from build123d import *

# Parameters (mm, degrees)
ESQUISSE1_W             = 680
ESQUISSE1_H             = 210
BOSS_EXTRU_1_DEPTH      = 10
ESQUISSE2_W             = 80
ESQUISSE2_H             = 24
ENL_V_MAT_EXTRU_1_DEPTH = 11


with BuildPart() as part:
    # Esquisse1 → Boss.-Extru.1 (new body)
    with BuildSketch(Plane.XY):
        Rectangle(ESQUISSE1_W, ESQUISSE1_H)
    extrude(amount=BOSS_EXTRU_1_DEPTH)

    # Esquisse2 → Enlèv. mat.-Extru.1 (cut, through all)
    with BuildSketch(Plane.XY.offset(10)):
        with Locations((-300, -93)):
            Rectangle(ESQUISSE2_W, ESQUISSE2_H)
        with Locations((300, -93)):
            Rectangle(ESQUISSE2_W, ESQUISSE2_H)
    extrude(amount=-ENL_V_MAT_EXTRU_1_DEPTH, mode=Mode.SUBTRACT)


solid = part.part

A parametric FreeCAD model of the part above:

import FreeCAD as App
import Part
import Sketcher

V = App.Vector
Q = App.Units.Quantity


def add_polygon(sketch, points):
    """Adds a closed chain of lines whose ends are joined by coincident constraints."""
    first, n = sketch.GeometryCount, len(points)
    for a, b in zip(points, points[1:] + points[:1]):
        sketch.addGeometry(Part.LineSegment(App.Vector(*a, 0), App.Vector(*b, 0)), False)
    for i in range(n):
        sketch.addConstraint(Sketcher.Constraint("Coincident", first + i, 2, first + (i + 1) % n, 1))

doc = App.newDocument("Part")
params = doc.addObject("Spreadsheet::Sheet", "Params")
for row, (alias, value) in enumerate([
    ("sketch1_width", "680 mm"),
    ("sketch1_height", "210 mm"),
    ("pad1_length", "10 mm"),
    ("sketch2_width", "80 mm"),
    ("sketch2_height", "24 mm"),
], start=1):
    params.set(f"A{row}", alias)
    params.set(f"B{row}", "=" + value)
    params.setAlias(f"B{row}", alias)

body = doc.addObject("PartDesign::Body", "Body")

sketch1 = body.newObject("Sketcher::SketchObject", "Sketch")
sketch1.AttachmentSupport = (doc.getObject("XY_Plane"), [""])
sketch1.MapMode = "FlatFace"
add_polygon(sketch1, [(-340, 105), (-340, -105), (340, -105), (340, 105)])
sketch1.addConstraint(Sketcher.Constraint("Vertical", 0))
sketch1.addConstraint(Sketcher.Constraint("Horizontal", 1))
sketch1.addConstraint(Sketcher.Constraint("Vertical", 2))
sketch1.addConstraint(Sketcher.Constraint("Horizontal", 3))
sketch1.addConstraint(Sketcher.Constraint("Symmetric", 0, 2, 2, 2, -1, 1))
sketch1.addConstraint(Sketcher.Constraint("DistanceX", 1, 1, 1, 2, Q("680 mm")))
sketch1.addConstraint(Sketcher.Constraint("DistanceY", 0, 2, 0, 1, Q("210 mm")))
sketch1.setExpression("Constraints[9]", "Params.sketch1_width")
sketch1.setExpression("Constraints[10]", "Params.sketch1_height")
pad1 = body.newObject("PartDesign::Pad", "Pad")
pad1.Profile = sketch1
pad1.setExpression("Length", "Params.pad1_length")

sketch2 = body.newObject("Sketcher::SketchObject", "Sketch001")
sketch2.AttachmentSupport = (doc.getObject("XY_Plane"), [""])
sketch2.MapMode = "FlatFace"
sketch2.AttachmentOffset = App.Placement(V(0, 0, 10), App.Rotation())
add_polygon(sketch2, [(-340, -81), (-340, -105), (-260, -105), (-260, -81)])
add_polygon(sketch2, [(260, -81), (260, -105), (340, -105), (340, -81)])
sketch2.addConstraint(Sketcher.Constraint("Vertical", 0))
sketch2.addConstraint(Sketcher.Constraint("Horizontal", 1))
sketch2.addConstraint(Sketcher.Constraint("Vertical", 2))
sketch2.addConstraint(Sketcher.Constraint("Horizontal", 3))
sketch2.addConstraint(Sketcher.Constraint("Vertical", 4))
sketch2.addConstraint(Sketcher.Constraint("Horizontal", 5))
sketch2.addConstraint(Sketcher.Constraint("Vertical", 6))
sketch2.addConstraint(Sketcher.Constraint("Horizontal", 7))
sketch2.addConstraint(Sketcher.Constraint("Symmetric", 1, 2, 4, 2, -2))
sketch2.addConstraint(Sketcher.Constraint("Symmetric", 3, 2, 6, 2, -2))
sketch2.addConstraint(Sketcher.Constraint("DistanceX", 1, 1, 1, 2, Q("80 mm")))
sketch2.addConstraint(Sketcher.Constraint("DistanceY", 0, 2, 0, 1, Q("24 mm")))
sketch2.addConstraint(Sketcher.Constraint("DistanceX", 0, 2, -1, 1, Q("340 mm")))
sketch2.addConstraint(Sketcher.Constraint("DistanceY", 0, 2, -1, 1, Q("105 mm")))
sketch2.setExpression("Constraints[18]", "Params.sketch2_width")
sketch2.setExpression("Constraints[19]", "Params.sketch2_height")
pocket1 = body.newObject("PartDesign::Pocket", "Pocket")
pocket1.Profile = sketch2
pocket1.Type = "ThroughAll"

doc.recompute()
